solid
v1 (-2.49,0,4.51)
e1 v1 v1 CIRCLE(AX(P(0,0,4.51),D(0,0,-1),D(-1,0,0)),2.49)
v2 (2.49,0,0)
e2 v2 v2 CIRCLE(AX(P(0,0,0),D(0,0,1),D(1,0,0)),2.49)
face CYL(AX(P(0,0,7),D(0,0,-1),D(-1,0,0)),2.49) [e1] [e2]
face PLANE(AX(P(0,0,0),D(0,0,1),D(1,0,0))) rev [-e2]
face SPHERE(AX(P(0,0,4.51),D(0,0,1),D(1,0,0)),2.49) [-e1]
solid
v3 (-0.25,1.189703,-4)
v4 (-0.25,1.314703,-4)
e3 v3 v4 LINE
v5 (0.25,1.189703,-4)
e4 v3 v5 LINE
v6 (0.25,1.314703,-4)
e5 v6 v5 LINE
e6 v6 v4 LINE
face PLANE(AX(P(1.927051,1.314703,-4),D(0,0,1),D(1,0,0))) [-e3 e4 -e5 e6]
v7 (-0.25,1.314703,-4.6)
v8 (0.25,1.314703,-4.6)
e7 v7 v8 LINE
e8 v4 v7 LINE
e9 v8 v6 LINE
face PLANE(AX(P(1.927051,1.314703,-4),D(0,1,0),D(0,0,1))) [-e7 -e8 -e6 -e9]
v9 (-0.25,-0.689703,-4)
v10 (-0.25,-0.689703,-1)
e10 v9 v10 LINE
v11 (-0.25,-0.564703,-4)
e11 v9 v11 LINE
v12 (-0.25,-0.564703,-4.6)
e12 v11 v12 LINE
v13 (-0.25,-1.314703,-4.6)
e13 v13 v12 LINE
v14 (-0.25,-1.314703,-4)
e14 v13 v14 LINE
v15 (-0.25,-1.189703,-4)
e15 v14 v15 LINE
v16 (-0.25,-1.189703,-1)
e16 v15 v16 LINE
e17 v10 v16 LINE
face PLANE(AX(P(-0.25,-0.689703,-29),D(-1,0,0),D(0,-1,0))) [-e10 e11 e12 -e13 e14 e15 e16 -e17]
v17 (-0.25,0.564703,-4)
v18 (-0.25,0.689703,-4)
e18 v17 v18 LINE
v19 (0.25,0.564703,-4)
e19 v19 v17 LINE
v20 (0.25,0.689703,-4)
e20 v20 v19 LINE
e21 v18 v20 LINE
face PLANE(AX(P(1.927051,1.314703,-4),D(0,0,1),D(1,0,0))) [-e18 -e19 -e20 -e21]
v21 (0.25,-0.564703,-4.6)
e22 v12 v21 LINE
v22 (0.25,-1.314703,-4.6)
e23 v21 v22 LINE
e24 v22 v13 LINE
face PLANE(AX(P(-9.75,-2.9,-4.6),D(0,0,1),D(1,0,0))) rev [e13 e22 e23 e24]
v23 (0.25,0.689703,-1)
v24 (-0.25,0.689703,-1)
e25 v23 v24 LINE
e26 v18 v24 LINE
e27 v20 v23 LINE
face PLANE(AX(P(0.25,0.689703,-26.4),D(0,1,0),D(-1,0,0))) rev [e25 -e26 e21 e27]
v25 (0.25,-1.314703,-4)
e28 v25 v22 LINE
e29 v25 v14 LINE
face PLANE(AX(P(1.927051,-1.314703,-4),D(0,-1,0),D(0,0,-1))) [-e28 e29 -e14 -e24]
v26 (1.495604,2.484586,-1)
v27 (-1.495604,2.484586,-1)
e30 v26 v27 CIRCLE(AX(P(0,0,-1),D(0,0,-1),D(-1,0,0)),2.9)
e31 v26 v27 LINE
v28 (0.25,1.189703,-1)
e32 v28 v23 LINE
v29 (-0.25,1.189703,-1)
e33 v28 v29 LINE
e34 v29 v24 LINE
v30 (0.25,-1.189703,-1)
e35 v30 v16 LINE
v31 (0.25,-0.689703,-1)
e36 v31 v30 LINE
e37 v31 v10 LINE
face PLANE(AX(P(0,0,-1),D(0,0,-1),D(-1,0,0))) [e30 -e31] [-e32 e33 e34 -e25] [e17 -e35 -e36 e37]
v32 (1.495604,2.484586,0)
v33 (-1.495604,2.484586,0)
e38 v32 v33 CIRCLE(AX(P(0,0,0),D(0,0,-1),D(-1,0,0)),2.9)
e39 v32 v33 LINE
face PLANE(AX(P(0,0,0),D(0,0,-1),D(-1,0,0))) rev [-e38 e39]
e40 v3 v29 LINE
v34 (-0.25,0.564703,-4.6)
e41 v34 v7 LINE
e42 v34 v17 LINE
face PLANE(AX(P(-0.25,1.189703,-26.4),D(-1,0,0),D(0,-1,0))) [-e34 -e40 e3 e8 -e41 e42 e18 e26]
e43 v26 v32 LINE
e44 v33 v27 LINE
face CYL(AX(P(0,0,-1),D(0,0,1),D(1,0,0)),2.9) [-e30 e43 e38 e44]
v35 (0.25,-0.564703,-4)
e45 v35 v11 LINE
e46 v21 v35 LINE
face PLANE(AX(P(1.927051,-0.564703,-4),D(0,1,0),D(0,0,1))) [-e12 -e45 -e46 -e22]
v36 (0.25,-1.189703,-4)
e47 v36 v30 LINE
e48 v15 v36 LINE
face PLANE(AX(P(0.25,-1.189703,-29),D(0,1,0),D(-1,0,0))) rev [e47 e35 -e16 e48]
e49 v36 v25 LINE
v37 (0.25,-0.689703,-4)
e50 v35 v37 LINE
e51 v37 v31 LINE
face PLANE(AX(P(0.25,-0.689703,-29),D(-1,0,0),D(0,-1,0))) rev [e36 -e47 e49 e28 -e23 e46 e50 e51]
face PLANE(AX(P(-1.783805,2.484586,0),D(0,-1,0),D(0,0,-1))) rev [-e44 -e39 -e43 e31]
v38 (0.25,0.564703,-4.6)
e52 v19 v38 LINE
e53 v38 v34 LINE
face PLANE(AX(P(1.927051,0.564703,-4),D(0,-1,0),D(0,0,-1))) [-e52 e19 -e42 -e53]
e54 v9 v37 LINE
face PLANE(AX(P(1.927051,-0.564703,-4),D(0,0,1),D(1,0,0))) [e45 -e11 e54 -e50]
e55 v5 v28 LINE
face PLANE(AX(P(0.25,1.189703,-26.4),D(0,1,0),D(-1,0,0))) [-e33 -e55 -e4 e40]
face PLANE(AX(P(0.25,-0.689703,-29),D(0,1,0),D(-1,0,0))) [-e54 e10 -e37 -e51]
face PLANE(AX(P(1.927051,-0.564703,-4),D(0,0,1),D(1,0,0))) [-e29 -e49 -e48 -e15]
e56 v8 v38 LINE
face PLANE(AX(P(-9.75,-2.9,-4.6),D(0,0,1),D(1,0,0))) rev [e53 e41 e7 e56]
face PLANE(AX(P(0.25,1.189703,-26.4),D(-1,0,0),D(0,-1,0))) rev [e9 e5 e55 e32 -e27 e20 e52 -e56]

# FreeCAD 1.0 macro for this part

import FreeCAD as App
import Part
import Sketcher

V = App.Vector


def edges_at(feature, points):
    """Names of the edges that pass closest to the given points."""
    edges = feature.Shape.Edges
    near = lambda p: min(range(len(edges)), key=lambda i: edges[i].distToShape(Part.Vertex(*p))[0])
    return sorted({f"Edge{near(p) + 1}" for p in points})

doc = App.newDocument("Part")
params = doc.addObject("Spreadsheet::Sheet", "Params")
for row, (alias, value) in enumerate([
    ("sketch1_diameter", "4.98 mm"),
    ("pad1_length", "7 mm"),
    ("fillet_radius", "2.49 mm"),
    ("sketch2_diameter", "5.8 mm"),
    ("pad2_length", "1 mm"),
    ("pocket1_length", "1 mm"),
    ("sketch4_width", "0.5 mm"),
    ("pad3_length", "28 mm"),
    ("sketch5_width", "0.5 mm"),
    ("pad4_length", "25.4 mm"),
    ("sketch6_height", "1.5 mm"),
    ("sketch6_width", "0.75 mm"),
    ("pad5_length", "0.5 mm"),
    ("sketch7_height", "24.4 mm"),
    ("pocket2_length", "10 mm"),
], start=1):
    params.set(f"A{row}", alias)
    params.set(f"B{row}", "=" + value)
    params.setAlias(f"B{row}", alias)

body = doc.addObject("PartDesign::Body", "Body")

# Sketch on XY plane
sketch1 = body.newObject("Sketcher::SketchObject", "Sketch")
sketch1.AttachmentSupport = (doc.getObject("XY_Plane"), [""])
sketch1.MapMode = "FlatFace"
sketch1.addGeometry(Part.Circle(V(0, 0, 0), V(0, 0, 1), 2.49), False)
sketch1.addConstraint(Sketcher.Constraint("Coincident", 0, 3, -1, 1))
sketch1.addConstraint(Sketcher.Constraint("Diameter", 0, 4.98))
sketch1.setExpression("Constraints[1]", "Params.sketch1_diameter")
pad1 = body.newObject("PartDesign::Pad", "Pad")
pad1.Profile = sketch1
pad1.setExpression("Length", "Params.pad1_length")
doc.recompute()

fillet = body.newObject("PartDesign::Fillet", "Fillet")
fillet.Base = (pad1, edges_at(pad1, [(-2.49, 0, 7)]))
fillet.setExpression("Radius", "Params.fillet_radius")
body2 = doc.addObject("PartDesign::Body", "Body001")

# Sketch on XY plane
sketch2 = body2.newObject("Sketcher::SketchObject", "Sketch001")
sketch2.AttachmentSupport = (doc.getObject("XY_Plane001"), [""])
sketch2.MapMode = "FlatFace"
sketch2.addGeometry(Part.Circle(V(0, 0, 0), V(0, 0, 1), 2.9), False)
sketch2.addConstraint(Sketcher.Constraint("Coincident", 0, 3, -1, 1))
sketch2.addConstraint(Sketcher.Constraint("Diameter", 0, 5.8))
sketch2.setExpression("Constraints[1]", "Params.sketch2_diameter")
pad2 = body2.newObject("PartDesign::Pad", "Pad001")
pad2.Profile = sketch2
pad2.setExpression("Length", "Params.pad2_length")
pad2.Reversed = True

# Sketch on XY plane
sketch3 = body2.newObject("Sketcher::SketchObject", "Sketch002")
sketch3.AttachmentSupport = (doc.getObject("XY_Plane001"), [""])
sketch3.MapMode = "FlatFace"
sketch3.AttachmentOffset = App.Placement(V(0, 0, -1), App.Rotation())
sketch3.addGeometry(Part.LineSegment(V(1.980719, 3.05216, 0), V(1.980719, 2.484586, 0)), False)
sketch3.addGeometry(Part.LineSegment(V(1.980719, 2.484586, 0), V(-1.783805, 2.484586, 0)), False)
sketch3.addGeometry(Part.LineSegment(V(-1.783805, 2.484586, 0), V(-1.783805, 3.05216, 0)), False)
sketch3.addGeometry(Part.LineSegment(V(-1.783805, 3.05216, 0), V(1.980719, 3.05216, 0)), False)
sketch3.addConstraint(Sketcher.Constraint("Coincident", 0, 2, 1, 1))
sketch3.addConstraint(Sketcher.Constraint("Coincident", 1, 2, 2, 1))
sketch3.addConstraint(Sketcher.Constraint("Coincident", 2, 2, 3, 1))
sketch3.addConstraint(Sketcher.Constraint("Coincident", 3, 2, 0, 1))
sketch3.addConstraint(Sketcher.Constraint("Vertical", 0))
sketch3.addConstraint(Sketcher.Constraint("Horizontal", 1))
sketch3.addConstraint(Sketcher.Constraint("Vertical", 2))
sketch3.addConstraint(Sketcher.Constraint("Horizontal", 3))
sketch3.addConstraint(Sketcher.Constraint("DistanceX", 1, 2, 1, 1, 3.764524))
sketch3.addConstraint(Sketcher.Constraint("DistanceY", 0, 2, 0, 1, 0.567574))
sketch3.addConstraint(Sketcher.Constraint("DistanceX", -1, 1, 0, 2, 1.980719))
sketch3.addConstraint(Sketcher.Constraint("DistanceY", -1, 1, 2, 2, 3.05216))
pocket1 = body2.newObject("PartDesign::Pocket", "Pocket")
pocket1.Profile = sketch3
pocket1.setExpression("Length", "Params.pocket1_length")
pocket1.Reversed = True

# Sketch on XY plane
sketch4 = body2.newObject("Sketcher::SketchObject", "Sketch003")
sketch4.AttachmentSupport = (doc.getObject("XY_Plane001"), [""])
sketch4.MapMode = "FlatFace"
sketch4.AttachmentOffset = App.Placement(V(0, 0, -1), App.Rotation())
sketch4.addGeometry(Part.LineSegment(V(0.25, -0.689703, 0), V(0.25, -1.189703, 0)), False)
sketch4.addGeometry(Part.LineSegment(V(0.25, -1.189703, 0), V(-0.25, -1.189703, 0)), False)
sketch4.addGeometry(Part.LineSegment(V(-0.25, -1.189703, 0), V(-0.25, -0.689703, 0)), False)
sketch4.addGeometry(Part.LineSegment(V(-0.25, -0.689703, 0), V(0.25, -0.689703, 0)), False)
sketch4.addConstraint(Sketcher.Constraint("Coincident", 0, 2, 1, 1))
sketch4.addConstraint(Sketcher.Constraint("Coincident", 1, 2, 2, 1))
sketch4.addConstraint(Sketcher.Constraint("Coincident", 2, 2, 3, 1))
sketch4.addConstraint(Sketcher.Constraint("Coincident", 3, 2, 0, 1))
sketch4.addConstraint(Sketcher.Constraint("Vertical", 0))
sketch4.addConstraint(Sketcher.Constraint("Horizontal", 1))
sketch4.addConstraint(Sketcher.Constraint("Vertical", 2))
sketch4.addConstraint(Sketcher.Constraint("Horizontal", 3))
sketch4.addConstraint(Sketcher.Constraint("Equal", 3, 0))
sketch4.addConstraint(Sketcher.Constraint("DistanceX", 1, 2, 1, 1, 0.5))
sketch4.addConstraint(Sketcher.Constraint("DistanceX", -1, 1, 0, 2, 0.25))
sketch4.addConstraint(Sketcher.Constraint("DistanceY", 0, 2, -1, 1, 1.189703))
sketch4.setExpression("Constraints[9]", "Params.sketch4_width")
pad3 = body2.newObject("PartDesign::Pad", "Pad002")
pad3.Profile = sketch4
pad3.setExpression("Length", "Params.pad3_length")
pad3.Reversed = True

# Sketch on XY plane
sketch5 = body2.newObject("Sketcher::SketchObject", "Sketch004")
sketch5.AttachmentSupport = (doc.getObject("XY_Plane001"), [""])
sketch5.MapMode = "FlatFace"
sketch5.AttachmentOffset = App.Placement(V(0, 0, -1), App.Rotation())
sketch5.addGeometry(Part.LineSegment(V(0.25, 1.189703, 0), V(0.25, 0.689703, 0)), False)
sketch5.addGeometry(Part.LineSegment(V(0.25, 0.689703, 0), V(-0.25, 0.689703, 0)), False)
sketch5.addGeometry(Part.LineSegment(V(-0.25, 0.689703, 0), V(-0.25, 1.189703, 0)), False)
sketch5.addGeometry(Part.LineSegment(V(-0.25, 1.189703, 0), V(0.25, 1.189703, 0)), False)
sketch5.addConstraint(Sketcher.Constraint("Coincident", 0, 2, 1, 1))
sketch5.addConstraint(Sketcher.Constraint("Coincident", 1, 2, 2, 1))
sketch5.addConstraint(Sketcher.Constraint("Coincident", 2, 2, 3, 1))
sketch5.addConstraint(Sketcher.Constraint("Coincident", 3, 2, 0, 1))
sketch5.addConstraint(Sketcher.Constraint("Vertical", 0))
sketch5.addConstraint(Sketcher.Constraint("Horizontal", 1))
sketch5.addConstraint(Sketcher.Constraint("Vertical", 2))
sketch5.addConstraint(Sketcher.Constraint("Horizontal", 3))
sketch5.addConstraint(Sketcher.Constraint("Equal", 3, 0))
sketch5.addConstraint(Sketcher.Constraint("DistanceX", 1, 2, 1, 1, 0.5))
sketch5.addConstraint(Sketcher.Constraint("DistanceX", -1, 1, 0, 2, 0.25))
sketch5.addConstraint(Sketcher.Constraint("DistanceY", -1, 1, 0, 2, 0.689703))
sketch5.setExpression("Constraints[9]", "Params.sketch5_width")
pad4 = body2.newObject("PartDesign::Pad", "Pad003")
pad4.Profile = sketch5
pad4.setExpression("Length", "Params.pad4_length")
pad4.Reversed = True

# Sketch on YZ plane
sketch6 = body2.newObject("Sketcher::SketchObject", "Sketch005")
sketch6.AttachmentSupport = (doc.getObject("YZ_Plane001"), [""])
sketch6.MapMode = "FlatFace"
sketch6.AttachmentOffset = App.Placement(V(0, 0, -0.25), App.Rotation())
sketch6.addGeometry(Part.LineSegment(V(1.314703, -5.5, 0), V(0.564703, -5.5, 0)), False)
sketch6.addGeometry(Part.LineSegment(V(0.564703, -5.5, 0), V(0.564703, -4, 0)), False)
sketch6.addGeometry(Part.LineSegment(V(0.564703, -4, 0), V(1.314703, -4, 0)), False)
sketch6.addGeometry(Part.LineSegment(V(1.314703, -4, 0), V(1.314703, -5.5, 0)), False)
sketch6.addGeometry(Part.LineSegment(V(-0.564703, -5.5, 0), V(-1.314703, -5.5, 0)), False)
sketch6.addGeometry(Part.LineSegment(V(-1.314703, -5.5, 0), V(-1.314703, -4, 0)), False)
sketch6.addGeometry(Part.LineSegment(V(-1.314703, -4, 0), V(-0.564703, -4, 0)), False)
sketch6.addGeometry(Part.LineSegment(V(-0.564703, -4, 0), V(-0.564703, -5.5, 0)), False)
sketch6.addConstraint(Sketcher.Constraint("Coincident", 0, 2, 1, 1))
sketch6.addConstraint(Sketcher.Constraint("Coincident", 1, 2, 2, 1))
sketch6.addConstraint(Sketcher.Constraint("Coincident", 2, 2, 3, 1))
sketch6.addConstraint(Sketcher.Constraint("Coincident", 3, 2, 0, 1))
sketch6.addConstraint(Sketcher.Constraint("Coincident", 4, 2, 5, 1))
sketch6.addConstraint(Sketcher.Constraint("Coincident", 5, 2, 6, 1))
sketch6.addConstraint(Sketcher.Constraint("Coincident", 6, 2, 7, 1))
sketch6.addConstraint(Sketcher.Constraint("Coincident", 7, 2, 4, 1))
sketch6.addConstraint(Sketcher.Constraint("Horizontal", 0))
sketch6.addConstraint(Sketcher.Constraint("Vertical", 1))
sketch6.addConstraint(Sketcher.Constraint("Horizontal", 2))
sketch6.addConstraint(Sketcher.Constraint("Vertical", 3))
sketch6.addConstraint(Sketcher.Constraint("Horizontal", 4))
sketch6.addConstraint(Sketcher.Constraint("Vertical", 5))
sketch6.addConstraint(Sketcher.Constraint("Horizontal", 6))
sketch6.addConstraint(Sketcher.Constraint("Vertical", 7))
sketch6.addConstraint(Sketcher.Constraint("Symmetric", 3, 2, 4, 2, -2))
sketch6.addConstraint(Sketcher.Constraint("Symmetric", 1, 2, 6, 2, -2))
sketch6.addConstraint(Sketcher.Constraint("DistanceY", 1, 1, 1, 2, 1.5))
sketch6.addConstraint(Sketcher.Constraint("DistanceY", 1, 2, -1, 1, 4.0))
sketch6.addConstraint(Sketcher.Constraint("DistanceX", 0, 2, 0, 1, 0.75))
sketch6.addConstraint(Sketcher.Constraint("DistanceX", -1, 1, 0, 2, 0.564703))
sketch6.setExpression("Constraints[18]", "Params.sketch6_height")
sketch6.setExpression("Constraints[20]", "Params.sketch6_width")
pad5 = body2.newObject("PartDesign::Pad", "Pad004")
pad5.Profile = sketch6
pad5.setExpression("Length", "Params.pad5_length")

# Sketch on YZ plane
sketch7 = body2.newObject("Sketcher::SketchObject", "Sketch006")
sketch7.AttachmentSupport = (doc.getObject("YZ_Plane001"), [""])
sketch7.MapMode = "FlatFace"
sketch7.AttachmentOffset = App.Placement(V(0, 0, 0.25), App.Rotation())
sketch7.addGeometry(Part.LineSegment(V(2.484586, -4.6, 0), V(-2.9, -4.6, 0)), False)
sketch7.addGeometry(Part.LineSegment(V(-2.9, -4.6, 0), V(-2.9, -29, 0)), False)
sketch7.addGeometry(Part.LineSegment(V(-2.9, -29, 0), V(2.484586, -29, 0)), False)
sketch7.addGeometry(Part.LineSegment(V(2.484586, -29, 0), V(2.484586, -4.6, 0)), False)
sketch7.addConstraint(Sketcher.Constraint("Coincident", 0, 2, 1, 1))
sketch7.addConstraint(Sketcher.Constraint("Coincident", 1, 2, 2, 1))
sketch7.addConstraint(Sketcher.Constraint("Coincident", 2, 2, 3, 1))
sketch7.addConstraint(Sketcher.Constraint("Coincident", 3, 2, 0, 1))
sketch7.addConstraint(Sketcher.Constraint("Horizontal", 0))
sketch7.addConstraint(Sketcher.Constraint("Vertical", 1))
sketch7.addConstraint(Sketcher.Constraint("Horizontal", 2))
sketch7.addConstraint(Sketcher.Constraint("Vertical", 3))
sketch7.addConstraint(Sketcher.Constraint("DistanceY", 1, 2, 1, 1, 24.4))
sketch7.addConstraint(Sketcher.Constraint("DistanceY", 1, 2, -1, 1, 29.0))
sketch7.addConstraint(Sketcher.Constraint("DistanceX", 0, 2, -1, 1, 2.9))
sketch7.addConstraint(Sketcher.Constraint("DistanceX", 0, 2, 0, 1, 5.384586))
sketch7.setExpression("Constraints[8]", "Params.sketch7_height")
pocket2 = body2.newObject("PartDesign::Pocket", "Pocket001")
pocket2.Profile = sketch7
pocket2.setExpression("Length", "Params.pocket2_length")

doc.recompute()
